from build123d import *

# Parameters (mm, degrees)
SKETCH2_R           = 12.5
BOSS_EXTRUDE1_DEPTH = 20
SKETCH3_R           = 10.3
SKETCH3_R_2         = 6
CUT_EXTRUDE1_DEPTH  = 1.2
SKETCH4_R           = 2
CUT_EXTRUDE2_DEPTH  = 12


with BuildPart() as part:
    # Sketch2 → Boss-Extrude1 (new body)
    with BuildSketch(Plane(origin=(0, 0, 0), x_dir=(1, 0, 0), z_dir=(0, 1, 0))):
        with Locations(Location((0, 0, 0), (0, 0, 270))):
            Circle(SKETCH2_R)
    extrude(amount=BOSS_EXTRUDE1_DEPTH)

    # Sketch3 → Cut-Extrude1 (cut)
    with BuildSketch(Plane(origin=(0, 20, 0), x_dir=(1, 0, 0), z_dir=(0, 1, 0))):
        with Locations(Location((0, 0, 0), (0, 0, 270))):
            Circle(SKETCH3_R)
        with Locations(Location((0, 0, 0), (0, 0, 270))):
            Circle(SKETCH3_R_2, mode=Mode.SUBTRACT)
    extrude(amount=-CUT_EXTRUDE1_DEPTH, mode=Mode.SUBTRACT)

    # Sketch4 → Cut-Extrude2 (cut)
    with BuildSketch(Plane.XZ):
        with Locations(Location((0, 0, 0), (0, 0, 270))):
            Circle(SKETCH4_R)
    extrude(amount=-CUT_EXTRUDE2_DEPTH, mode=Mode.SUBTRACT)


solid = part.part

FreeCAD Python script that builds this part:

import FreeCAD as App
import Part
import Sketcher

V = App.Vector
Q = App.Units.Quantity

doc = App.newDocument("Part")
body = doc.addObject("PartDesign::Body", "Body")

# Sketch on XZ plane
sketch1 = body.newObject("Sketcher::SketchObject", "Sketch")
sketch1.AttachmentSupport = (doc.getObject("XZ_Plane"), [""])
sketch1.MapMode = "FlatFace"
sketch1.addGeometry(Part.Circle(V(0, 0, 0), V(0, 0, 1), 12), False)
sketch1.addConstraint(Sketcher.Constraint("Coincident", 0, 3, -1, 1))
sketch1.addConstraint(Sketcher.Constraint("Diameter", 0, Q("25 mm")))
pad1 = body.newObject("PartDesign::Pad", "Pad")
pad1.Profile = sketch1
pad1.Length = 20
pad1.Reversed = True

# Sketch on XZ plane
sketch2 = body.newObject("Sketcher::SketchObject", "Sketch001")
sketch2.AttachmentSupport = (doc.getObject("XZ_Plane"), [""])
sketch2.MapMode = "FlatFace"
sketch2.AttachmentOffset = App.Placement(V(0, 0, -20), App.Rotation())
sketch2.addGeometry(Part.Circle(V(0, 0, 0), V(0, 0, 1), 10), False)
sketch2.addGeometry(Part.Circle(V(0, 0, 0), V(0, 0, 1), 6), False)
sketch2.addConstraint(Sketcher.Constraint("Coincident", 0, 3, -1, 1))
sketch2.addConstraint(Sketcher.Constraint("Coincident", 1, 3, -1, 1))
sketch2.addConstraint(Sketcher.Constraint("Diameter", 1, Q("12 mm")))
sketch2.addConstraint(Sketcher.Constraint("Diameter", 0, Q("20.6 mm")))
pocket1 = body.newObject("PartDesign::Pocket", "Pocket")
pocket1.Profile = sketch2
pocket1.Length = 1.2
pocket1.Reversed = True

# Sketch on XZ plane
sketch3 = body.newObject("Sketcher::SketchObject", "Sketch002")
sketch3.AttachmentSupport = (doc.getObject("XZ_Plane"), [""])
sketch3.MapMode = "FlatFace"
sketch3.addGeometry(Part.Circle(V(0, 0, 0), V(0, 0, 1), 2), False)
sketch3.addConstraint(Sketcher.Constraint("Coincident", 0, 3, -1, 1))
sketch3.addConstraint(Sketcher.Constraint("Diameter", 0, Q("4 mm")))
pocket2 = body.newObject("PartDesign::Pocket", "Pocket001")
pocket2.Profile = sketch3
pocket2.Length = 12

doc.recompute()
